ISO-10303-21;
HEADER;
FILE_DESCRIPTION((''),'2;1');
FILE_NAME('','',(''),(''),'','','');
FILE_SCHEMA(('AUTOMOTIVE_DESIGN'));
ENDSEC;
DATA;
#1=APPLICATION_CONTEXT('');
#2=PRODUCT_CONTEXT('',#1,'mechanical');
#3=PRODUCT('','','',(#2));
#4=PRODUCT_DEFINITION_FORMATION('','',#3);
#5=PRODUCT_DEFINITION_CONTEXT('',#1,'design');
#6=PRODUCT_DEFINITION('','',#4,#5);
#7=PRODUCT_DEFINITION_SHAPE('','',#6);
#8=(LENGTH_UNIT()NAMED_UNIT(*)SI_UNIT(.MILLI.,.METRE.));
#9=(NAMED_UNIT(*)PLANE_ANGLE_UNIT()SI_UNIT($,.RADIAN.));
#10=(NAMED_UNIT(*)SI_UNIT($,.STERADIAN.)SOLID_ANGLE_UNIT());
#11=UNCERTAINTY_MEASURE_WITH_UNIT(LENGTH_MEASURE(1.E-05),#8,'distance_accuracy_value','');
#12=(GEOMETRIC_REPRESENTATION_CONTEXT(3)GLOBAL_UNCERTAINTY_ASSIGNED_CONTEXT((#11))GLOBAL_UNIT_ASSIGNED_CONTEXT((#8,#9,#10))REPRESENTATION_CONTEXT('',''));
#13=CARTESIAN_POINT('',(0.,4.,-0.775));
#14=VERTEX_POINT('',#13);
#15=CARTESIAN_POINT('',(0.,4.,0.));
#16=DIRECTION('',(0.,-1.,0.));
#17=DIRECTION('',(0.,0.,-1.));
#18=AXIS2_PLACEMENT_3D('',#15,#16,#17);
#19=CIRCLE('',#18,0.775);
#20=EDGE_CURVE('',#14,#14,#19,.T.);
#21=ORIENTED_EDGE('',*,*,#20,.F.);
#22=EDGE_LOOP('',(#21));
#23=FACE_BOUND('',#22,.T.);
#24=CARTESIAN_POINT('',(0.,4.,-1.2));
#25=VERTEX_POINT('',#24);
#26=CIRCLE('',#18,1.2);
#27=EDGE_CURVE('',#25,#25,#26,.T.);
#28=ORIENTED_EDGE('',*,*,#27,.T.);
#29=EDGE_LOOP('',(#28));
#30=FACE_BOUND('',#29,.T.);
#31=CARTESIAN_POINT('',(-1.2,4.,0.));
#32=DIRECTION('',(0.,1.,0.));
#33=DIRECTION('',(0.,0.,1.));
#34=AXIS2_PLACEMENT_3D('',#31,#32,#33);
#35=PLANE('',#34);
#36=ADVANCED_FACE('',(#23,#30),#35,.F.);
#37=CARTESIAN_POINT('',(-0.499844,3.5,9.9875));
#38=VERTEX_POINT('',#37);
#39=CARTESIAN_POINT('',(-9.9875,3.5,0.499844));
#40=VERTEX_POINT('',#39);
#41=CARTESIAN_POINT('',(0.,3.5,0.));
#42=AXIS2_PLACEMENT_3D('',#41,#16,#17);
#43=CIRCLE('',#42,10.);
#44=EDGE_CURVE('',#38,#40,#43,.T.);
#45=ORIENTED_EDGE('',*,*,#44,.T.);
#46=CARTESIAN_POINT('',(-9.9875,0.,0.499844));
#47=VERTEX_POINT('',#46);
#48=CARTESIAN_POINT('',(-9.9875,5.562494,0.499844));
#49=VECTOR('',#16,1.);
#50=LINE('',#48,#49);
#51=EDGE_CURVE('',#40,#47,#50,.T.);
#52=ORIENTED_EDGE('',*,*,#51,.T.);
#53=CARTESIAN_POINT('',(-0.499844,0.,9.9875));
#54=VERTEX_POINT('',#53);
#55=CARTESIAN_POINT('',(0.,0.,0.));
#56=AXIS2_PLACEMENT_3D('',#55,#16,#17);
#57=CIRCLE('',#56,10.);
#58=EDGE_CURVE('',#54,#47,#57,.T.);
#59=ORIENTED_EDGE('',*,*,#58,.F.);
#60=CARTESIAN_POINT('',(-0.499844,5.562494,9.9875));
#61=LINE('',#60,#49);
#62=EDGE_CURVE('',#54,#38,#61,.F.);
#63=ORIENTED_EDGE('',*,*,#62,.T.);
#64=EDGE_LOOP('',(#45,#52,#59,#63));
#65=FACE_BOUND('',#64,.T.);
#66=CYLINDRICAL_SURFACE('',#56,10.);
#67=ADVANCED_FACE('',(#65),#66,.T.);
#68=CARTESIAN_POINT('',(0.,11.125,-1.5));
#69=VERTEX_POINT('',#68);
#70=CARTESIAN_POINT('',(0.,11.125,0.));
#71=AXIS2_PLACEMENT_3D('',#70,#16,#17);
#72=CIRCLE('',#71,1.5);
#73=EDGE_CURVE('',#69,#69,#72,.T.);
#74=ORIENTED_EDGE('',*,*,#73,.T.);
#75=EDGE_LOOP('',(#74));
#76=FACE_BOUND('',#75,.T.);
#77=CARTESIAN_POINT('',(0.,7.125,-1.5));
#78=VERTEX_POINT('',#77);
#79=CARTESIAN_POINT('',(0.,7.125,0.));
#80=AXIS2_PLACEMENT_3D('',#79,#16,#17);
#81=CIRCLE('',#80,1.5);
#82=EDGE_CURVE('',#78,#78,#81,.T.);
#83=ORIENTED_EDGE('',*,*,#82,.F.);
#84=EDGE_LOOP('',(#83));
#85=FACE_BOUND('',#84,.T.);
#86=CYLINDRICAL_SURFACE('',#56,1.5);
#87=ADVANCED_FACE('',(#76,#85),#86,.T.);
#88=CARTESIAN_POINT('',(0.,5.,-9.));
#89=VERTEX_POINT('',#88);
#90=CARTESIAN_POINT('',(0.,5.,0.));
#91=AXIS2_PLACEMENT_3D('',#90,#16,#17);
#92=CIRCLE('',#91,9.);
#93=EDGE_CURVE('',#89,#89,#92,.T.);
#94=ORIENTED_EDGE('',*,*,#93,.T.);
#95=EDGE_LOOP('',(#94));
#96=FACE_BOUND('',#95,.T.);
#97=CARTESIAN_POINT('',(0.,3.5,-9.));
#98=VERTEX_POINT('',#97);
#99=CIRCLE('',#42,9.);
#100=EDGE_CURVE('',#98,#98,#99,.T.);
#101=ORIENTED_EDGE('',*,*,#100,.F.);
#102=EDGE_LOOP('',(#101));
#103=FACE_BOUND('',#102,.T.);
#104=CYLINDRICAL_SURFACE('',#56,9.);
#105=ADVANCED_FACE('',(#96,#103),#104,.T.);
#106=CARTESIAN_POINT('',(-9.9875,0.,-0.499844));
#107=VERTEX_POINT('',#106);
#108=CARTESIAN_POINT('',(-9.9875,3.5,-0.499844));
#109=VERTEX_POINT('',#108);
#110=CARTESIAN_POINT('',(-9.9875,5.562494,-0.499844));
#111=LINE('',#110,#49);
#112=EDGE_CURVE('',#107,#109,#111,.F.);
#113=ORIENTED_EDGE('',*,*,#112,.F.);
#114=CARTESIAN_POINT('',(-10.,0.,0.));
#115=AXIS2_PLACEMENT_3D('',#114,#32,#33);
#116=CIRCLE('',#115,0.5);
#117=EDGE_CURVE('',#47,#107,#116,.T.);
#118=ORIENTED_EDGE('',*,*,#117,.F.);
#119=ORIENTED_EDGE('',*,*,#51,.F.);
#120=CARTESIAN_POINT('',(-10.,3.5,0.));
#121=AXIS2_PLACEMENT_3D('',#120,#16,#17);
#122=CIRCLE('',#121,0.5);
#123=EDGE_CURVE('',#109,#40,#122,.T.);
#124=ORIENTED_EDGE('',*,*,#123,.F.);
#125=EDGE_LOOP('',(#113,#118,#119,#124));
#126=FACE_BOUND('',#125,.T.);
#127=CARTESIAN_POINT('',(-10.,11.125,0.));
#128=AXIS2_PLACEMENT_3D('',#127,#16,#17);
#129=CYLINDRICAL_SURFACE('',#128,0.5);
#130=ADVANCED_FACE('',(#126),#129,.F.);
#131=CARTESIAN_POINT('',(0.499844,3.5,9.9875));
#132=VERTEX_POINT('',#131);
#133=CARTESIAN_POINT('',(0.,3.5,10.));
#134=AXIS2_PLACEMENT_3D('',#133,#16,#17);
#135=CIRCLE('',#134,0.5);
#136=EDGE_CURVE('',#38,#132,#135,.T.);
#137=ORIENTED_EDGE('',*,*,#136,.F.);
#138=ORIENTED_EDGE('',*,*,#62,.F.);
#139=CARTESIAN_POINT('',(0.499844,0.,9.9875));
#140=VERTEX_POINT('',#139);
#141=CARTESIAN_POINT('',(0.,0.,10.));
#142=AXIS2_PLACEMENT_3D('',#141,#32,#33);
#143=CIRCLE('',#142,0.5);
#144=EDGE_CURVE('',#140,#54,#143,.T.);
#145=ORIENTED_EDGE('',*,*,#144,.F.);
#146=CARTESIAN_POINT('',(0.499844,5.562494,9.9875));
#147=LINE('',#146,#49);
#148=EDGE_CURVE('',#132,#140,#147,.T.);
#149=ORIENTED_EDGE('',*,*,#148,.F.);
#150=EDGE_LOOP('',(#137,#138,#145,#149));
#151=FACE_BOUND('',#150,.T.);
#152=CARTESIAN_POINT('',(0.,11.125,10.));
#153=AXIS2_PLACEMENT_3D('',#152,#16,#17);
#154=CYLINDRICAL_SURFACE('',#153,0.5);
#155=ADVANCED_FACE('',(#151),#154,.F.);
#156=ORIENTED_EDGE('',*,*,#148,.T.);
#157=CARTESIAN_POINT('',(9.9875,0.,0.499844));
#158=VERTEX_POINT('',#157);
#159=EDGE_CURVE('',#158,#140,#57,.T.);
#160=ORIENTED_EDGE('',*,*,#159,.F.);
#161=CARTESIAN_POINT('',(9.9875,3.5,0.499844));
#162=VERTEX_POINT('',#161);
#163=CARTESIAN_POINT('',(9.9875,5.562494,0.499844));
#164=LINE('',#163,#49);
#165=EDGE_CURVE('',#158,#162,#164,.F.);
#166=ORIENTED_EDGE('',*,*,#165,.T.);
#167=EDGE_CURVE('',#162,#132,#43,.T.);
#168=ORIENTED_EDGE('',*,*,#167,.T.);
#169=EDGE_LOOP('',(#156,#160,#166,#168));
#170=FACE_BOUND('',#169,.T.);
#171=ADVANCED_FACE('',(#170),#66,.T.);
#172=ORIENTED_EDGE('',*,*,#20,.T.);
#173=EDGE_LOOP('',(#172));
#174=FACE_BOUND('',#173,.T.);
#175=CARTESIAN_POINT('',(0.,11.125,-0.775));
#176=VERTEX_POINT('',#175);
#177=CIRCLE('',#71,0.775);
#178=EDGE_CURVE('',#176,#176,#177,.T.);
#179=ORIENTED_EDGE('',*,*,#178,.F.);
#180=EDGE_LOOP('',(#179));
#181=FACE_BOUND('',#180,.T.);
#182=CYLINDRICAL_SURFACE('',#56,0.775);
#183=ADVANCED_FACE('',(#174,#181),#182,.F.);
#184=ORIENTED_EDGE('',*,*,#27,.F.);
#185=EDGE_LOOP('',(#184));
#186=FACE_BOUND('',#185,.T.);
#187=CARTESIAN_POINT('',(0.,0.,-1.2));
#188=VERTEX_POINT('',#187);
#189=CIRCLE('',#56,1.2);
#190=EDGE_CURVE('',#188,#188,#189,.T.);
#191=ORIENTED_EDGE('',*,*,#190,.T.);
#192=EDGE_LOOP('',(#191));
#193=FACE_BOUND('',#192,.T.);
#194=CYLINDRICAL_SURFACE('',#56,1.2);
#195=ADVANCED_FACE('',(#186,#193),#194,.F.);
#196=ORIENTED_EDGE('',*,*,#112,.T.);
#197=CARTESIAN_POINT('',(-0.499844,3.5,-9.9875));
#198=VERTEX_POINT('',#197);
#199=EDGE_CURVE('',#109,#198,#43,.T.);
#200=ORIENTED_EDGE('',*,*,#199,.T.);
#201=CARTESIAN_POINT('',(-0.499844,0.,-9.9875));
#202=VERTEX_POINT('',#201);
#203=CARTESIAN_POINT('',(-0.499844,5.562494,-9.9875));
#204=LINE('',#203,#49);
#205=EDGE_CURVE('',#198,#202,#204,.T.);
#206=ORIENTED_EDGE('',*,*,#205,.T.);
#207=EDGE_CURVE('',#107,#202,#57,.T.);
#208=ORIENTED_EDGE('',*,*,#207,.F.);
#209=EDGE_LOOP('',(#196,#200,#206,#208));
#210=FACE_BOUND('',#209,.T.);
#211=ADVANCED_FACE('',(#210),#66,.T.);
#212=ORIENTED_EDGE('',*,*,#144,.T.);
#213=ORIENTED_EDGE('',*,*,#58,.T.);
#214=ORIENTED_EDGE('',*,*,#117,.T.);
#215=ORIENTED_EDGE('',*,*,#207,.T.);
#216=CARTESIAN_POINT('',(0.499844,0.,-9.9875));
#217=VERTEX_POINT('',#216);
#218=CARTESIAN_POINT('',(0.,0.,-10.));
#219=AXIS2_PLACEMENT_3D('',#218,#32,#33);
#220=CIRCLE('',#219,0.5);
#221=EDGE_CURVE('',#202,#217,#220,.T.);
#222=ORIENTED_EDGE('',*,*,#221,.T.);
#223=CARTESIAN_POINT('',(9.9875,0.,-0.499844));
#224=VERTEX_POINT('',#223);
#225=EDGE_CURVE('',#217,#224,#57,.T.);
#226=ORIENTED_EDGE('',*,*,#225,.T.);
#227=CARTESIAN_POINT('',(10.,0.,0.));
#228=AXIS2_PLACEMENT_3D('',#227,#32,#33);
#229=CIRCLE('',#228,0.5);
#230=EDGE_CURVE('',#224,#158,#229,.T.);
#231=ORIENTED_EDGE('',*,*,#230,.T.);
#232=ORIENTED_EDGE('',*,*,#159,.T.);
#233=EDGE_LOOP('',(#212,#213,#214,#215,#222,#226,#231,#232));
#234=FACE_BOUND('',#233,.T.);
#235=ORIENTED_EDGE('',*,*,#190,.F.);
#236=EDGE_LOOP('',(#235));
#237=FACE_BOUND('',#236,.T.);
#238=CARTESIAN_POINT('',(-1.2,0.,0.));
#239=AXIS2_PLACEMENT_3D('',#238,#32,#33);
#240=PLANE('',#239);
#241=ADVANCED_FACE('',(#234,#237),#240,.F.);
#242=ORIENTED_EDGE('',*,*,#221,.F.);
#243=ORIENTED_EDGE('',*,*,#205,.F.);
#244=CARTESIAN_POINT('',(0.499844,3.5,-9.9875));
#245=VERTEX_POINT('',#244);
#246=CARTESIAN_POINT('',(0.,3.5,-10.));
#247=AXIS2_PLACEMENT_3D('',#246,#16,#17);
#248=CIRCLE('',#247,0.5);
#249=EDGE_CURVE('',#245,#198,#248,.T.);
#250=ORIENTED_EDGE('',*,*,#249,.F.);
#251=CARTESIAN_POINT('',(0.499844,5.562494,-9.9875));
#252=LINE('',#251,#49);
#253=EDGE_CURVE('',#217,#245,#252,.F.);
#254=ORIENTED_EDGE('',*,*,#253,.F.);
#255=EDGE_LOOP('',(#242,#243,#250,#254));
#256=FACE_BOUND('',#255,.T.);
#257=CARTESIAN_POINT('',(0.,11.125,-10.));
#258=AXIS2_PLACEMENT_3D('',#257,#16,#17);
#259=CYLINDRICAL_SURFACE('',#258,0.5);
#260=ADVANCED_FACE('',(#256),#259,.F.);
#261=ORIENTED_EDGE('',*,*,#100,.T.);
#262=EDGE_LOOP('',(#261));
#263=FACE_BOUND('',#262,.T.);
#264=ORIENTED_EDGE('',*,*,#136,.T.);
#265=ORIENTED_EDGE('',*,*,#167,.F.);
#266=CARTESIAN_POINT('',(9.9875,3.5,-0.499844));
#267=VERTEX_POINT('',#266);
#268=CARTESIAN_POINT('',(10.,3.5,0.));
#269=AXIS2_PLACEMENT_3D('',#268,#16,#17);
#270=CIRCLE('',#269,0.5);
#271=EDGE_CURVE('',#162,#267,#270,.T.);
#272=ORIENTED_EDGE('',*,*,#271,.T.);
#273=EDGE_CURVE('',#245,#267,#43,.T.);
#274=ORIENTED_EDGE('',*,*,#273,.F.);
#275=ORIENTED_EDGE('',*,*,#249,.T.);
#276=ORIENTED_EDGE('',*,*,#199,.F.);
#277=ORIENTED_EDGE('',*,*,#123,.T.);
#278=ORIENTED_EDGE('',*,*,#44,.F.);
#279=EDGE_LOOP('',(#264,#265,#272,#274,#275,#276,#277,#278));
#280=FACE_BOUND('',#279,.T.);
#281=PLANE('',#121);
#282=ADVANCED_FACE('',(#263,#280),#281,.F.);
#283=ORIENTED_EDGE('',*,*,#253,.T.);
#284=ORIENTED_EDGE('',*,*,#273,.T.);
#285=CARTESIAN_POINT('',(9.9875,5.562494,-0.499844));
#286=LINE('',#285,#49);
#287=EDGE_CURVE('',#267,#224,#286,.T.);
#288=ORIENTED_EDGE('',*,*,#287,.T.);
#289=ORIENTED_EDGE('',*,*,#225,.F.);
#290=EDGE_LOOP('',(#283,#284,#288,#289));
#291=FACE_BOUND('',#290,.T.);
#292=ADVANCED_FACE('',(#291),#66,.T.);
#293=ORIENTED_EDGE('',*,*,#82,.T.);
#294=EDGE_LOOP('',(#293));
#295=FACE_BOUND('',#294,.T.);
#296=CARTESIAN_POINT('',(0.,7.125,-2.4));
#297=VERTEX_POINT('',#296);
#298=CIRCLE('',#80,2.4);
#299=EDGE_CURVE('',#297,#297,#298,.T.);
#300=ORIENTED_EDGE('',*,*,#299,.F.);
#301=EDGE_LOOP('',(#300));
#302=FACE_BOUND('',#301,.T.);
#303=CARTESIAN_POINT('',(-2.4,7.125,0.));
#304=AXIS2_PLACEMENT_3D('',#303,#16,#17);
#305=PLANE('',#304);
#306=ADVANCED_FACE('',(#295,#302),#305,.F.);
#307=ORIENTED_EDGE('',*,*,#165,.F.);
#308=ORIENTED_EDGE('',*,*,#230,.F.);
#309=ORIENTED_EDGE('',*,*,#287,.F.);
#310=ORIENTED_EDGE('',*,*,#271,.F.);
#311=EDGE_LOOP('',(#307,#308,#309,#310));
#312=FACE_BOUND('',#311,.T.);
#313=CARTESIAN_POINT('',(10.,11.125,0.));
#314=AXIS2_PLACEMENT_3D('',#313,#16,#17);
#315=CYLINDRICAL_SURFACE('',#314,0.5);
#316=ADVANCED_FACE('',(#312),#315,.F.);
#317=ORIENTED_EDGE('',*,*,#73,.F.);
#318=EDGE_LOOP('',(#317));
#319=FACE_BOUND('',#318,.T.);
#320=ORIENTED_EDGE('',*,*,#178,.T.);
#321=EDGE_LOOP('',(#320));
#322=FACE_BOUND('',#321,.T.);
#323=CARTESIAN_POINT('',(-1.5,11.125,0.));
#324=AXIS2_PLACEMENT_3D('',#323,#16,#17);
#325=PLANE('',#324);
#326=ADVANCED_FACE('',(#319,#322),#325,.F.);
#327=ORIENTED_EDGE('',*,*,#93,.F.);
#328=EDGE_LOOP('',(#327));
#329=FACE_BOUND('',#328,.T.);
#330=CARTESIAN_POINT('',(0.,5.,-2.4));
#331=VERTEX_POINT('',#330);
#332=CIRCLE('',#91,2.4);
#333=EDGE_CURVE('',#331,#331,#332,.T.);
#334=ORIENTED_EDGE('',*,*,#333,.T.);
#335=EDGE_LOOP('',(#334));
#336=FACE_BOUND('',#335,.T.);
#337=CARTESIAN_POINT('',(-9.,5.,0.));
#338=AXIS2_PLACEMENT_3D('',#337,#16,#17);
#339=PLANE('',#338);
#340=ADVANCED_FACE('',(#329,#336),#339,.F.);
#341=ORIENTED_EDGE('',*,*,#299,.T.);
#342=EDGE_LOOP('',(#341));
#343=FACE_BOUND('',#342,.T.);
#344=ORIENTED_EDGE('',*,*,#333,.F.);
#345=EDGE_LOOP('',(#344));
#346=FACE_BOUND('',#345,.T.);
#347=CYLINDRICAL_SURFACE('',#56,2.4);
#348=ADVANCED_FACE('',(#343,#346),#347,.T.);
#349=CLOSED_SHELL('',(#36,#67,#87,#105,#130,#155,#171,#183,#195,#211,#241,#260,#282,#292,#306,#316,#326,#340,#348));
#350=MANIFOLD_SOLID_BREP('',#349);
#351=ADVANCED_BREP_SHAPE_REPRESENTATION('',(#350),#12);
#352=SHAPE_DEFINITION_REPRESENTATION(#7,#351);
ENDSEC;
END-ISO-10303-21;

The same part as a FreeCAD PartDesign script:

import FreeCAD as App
import Part
import Sketcher

V = App.Vector


def add_polygon(sketch, points):
    """Adds a closed chain of lines whose ends are joined by coincident constraints."""
    first, n = sketch.GeometryCount, len(points)
    for a, b in zip(points, points[1:] + points[:1]):
        sketch.addGeometry(Part.LineSegment(App.Vector(*a, 0), App.Vector(*b, 0)), False)
    for i in range(n):
        sketch.addConstraint(Sketcher.Constraint("Coincident", first + i, 2, first + (i + 1) % n, 1))

doc = App.newDocument("Part")
body = doc.addObject("PartDesign::Body", "Body")

# Sketch on XY plane
sketch1 = body.newObject("Sketcher::SketchObject", "Sketch")
sketch1.AttachmentSupport = (doc.getObject("XY_Plane"), [""])
sketch1.MapMode = "FlatFace"
add_polygon(sketch1, [(-0.78, 4), (-0.78, 11.12), (-1.5, 11.12), (-1.5, 7.12), (-2.4, 7.12), (-2.4, 5), (-9, 5), (-9, 3.5), (-10, 3.5), (-10, 0), (-1.2, 0), (-1.2, 4)])  # lines 0-11
sketch1.addConstraint(Sketcher.Constraint("Vertical", 0))
sketch1.addConstraint(Sketcher.Constraint("Horizontal", 1))
sketch1.addConstraint(Sketcher.Constraint("Vertical", 2))
sketch1.addConstraint(Sketcher.Constraint("Horizontal", 3))
sketch1.addConstraint(Sketcher.Constraint("Vertical", 4))
sketch1.addConstraint(Sketcher.Constraint("Horizontal", 5))
sketch1.addConstraint(Sketcher.Constraint("Vertical", 6))
sketch1.addConstraint(Sketcher.Constraint("Horizontal", 7))
sketch1.addConstraint(Sketcher.Constraint("Vertical", 8))
sketch1.addConstraint(Sketcher.Constraint("Horizontal", 9))
sketch1.addConstraint(Sketcher.Constraint("Vertical", 10))
sketch1.addConstraint(Sketcher.Constraint("Horizontal", 11))
sketch1.addConstraint(Sketcher.Constraint("PointOnObject", 8, 2, -1))
sketch1.addConstraint(Sketcher.Constraint("Equal", 2, 10))
sketch1.addConstraint(Sketcher.Constraint("DistanceX", 7, 2, 7, 1, 1.0))
sketch1.addConstraint(Sketcher.Constraint("DistanceY", 2, 2, 2, 1, 4.0))
sketch1.addConstraint(Sketcher.Constraint("DistanceX", 3, 2, 3, 1, 0.9))
sketch1.addConstraint(Sketcher.Constraint("DistanceX", 5, 2, 5, 1, 6.6))
sketch1.addConstraint(Sketcher.Constraint("DistanceX", 9, 1, 9, 2, 8.8))
sketch1.addConstraint(Sketcher.Constraint("DistanceY", 6, 2, 6, 1, 1.5))
sketch1.addConstraint(Sketcher.Constraint("DistanceY", 8, 2, 8, 1, 3.5))
sketch1.addConstraint(Sketcher.Constraint("DistanceX", 5, 2, -1, 1, 9.0))
sketch1.addConstraint(Sketcher.Constraint("DistanceX", 1, 2, 1, 1, 0.725))
sketch1.addConstraint(Sketcher.Constraint("DistanceY", 0, 1, 0, 2, 7.125))
revolution = body.newObject("PartDesign::Revolution", "Revolution")
revolution.Profile = sketch1
revolution.ReferenceAxis = (sketch1, ["V_Axis"])
revolution.Angle = 360

# Sketch on XZ plane
sketch2 = body.newObject("Sketcher::SketchObject", "Sketch001")
sketch2.AttachmentSupport = (doc.getObject("XZ_Plane"), [""])
sketch2.MapMode = "FlatFace"
sketch2.addGeometry(Part.Circle(V(0, 10, 0), V(0, 0, 1), 0.5), False)
sketch2.addGeometry(Part.Circle(V(10, 0, 0), V(0, 0, 1), 0.5), False)
sketch2.addGeometry(Part.Circle(V(0, -10, 0), V(0, 0, 1), 0.5), False)
sketch2.addGeometry(Part.Circle(V(-10, 0, 0), V(0, 0, 1), 0.5), False)
sketch2.addConstraint(Sketcher.Constraint("Equal", 0, 1))
sketch2.addConstraint(Sketcher.Constraint("Equal", 1, 2))
sketch2.addConstraint(Sketcher.Constraint("Equal", 2, 3))
sketch2.addConstraint(Sketcher.Constraint("Symmetric", 0, 3, 2, 3, -1, 1))
sketch2.addConstraint(Sketcher.Constraint("Symmetric", 1, 3, 3, 3, -1, 1))
sketch2.addConstraint(Sketcher.Constraint("PointOnObject", 0, 3, -2))
sketch2.addConstraint(Sketcher.Constraint("PointOnObject", 1, 3, -1))
sketch2.addConstraint(Sketcher.Constraint("Diameter", 0, 1.0))
sketch2.addConstraint(Sketcher.Constraint("DistanceY", -1, 1, 0, 3, 10.0))
sketch2.addConstraint(Sketcher.Constraint("DistanceX", -1, 1, 1, 3, 10.0))
pocket1 = body.newObject("PartDesign::Pocket", "Pocket")
pocket1.Profile = sketch2
pocket1.Type = "ThroughAll"
pocket1.Midplane = True

doc.recompute()
